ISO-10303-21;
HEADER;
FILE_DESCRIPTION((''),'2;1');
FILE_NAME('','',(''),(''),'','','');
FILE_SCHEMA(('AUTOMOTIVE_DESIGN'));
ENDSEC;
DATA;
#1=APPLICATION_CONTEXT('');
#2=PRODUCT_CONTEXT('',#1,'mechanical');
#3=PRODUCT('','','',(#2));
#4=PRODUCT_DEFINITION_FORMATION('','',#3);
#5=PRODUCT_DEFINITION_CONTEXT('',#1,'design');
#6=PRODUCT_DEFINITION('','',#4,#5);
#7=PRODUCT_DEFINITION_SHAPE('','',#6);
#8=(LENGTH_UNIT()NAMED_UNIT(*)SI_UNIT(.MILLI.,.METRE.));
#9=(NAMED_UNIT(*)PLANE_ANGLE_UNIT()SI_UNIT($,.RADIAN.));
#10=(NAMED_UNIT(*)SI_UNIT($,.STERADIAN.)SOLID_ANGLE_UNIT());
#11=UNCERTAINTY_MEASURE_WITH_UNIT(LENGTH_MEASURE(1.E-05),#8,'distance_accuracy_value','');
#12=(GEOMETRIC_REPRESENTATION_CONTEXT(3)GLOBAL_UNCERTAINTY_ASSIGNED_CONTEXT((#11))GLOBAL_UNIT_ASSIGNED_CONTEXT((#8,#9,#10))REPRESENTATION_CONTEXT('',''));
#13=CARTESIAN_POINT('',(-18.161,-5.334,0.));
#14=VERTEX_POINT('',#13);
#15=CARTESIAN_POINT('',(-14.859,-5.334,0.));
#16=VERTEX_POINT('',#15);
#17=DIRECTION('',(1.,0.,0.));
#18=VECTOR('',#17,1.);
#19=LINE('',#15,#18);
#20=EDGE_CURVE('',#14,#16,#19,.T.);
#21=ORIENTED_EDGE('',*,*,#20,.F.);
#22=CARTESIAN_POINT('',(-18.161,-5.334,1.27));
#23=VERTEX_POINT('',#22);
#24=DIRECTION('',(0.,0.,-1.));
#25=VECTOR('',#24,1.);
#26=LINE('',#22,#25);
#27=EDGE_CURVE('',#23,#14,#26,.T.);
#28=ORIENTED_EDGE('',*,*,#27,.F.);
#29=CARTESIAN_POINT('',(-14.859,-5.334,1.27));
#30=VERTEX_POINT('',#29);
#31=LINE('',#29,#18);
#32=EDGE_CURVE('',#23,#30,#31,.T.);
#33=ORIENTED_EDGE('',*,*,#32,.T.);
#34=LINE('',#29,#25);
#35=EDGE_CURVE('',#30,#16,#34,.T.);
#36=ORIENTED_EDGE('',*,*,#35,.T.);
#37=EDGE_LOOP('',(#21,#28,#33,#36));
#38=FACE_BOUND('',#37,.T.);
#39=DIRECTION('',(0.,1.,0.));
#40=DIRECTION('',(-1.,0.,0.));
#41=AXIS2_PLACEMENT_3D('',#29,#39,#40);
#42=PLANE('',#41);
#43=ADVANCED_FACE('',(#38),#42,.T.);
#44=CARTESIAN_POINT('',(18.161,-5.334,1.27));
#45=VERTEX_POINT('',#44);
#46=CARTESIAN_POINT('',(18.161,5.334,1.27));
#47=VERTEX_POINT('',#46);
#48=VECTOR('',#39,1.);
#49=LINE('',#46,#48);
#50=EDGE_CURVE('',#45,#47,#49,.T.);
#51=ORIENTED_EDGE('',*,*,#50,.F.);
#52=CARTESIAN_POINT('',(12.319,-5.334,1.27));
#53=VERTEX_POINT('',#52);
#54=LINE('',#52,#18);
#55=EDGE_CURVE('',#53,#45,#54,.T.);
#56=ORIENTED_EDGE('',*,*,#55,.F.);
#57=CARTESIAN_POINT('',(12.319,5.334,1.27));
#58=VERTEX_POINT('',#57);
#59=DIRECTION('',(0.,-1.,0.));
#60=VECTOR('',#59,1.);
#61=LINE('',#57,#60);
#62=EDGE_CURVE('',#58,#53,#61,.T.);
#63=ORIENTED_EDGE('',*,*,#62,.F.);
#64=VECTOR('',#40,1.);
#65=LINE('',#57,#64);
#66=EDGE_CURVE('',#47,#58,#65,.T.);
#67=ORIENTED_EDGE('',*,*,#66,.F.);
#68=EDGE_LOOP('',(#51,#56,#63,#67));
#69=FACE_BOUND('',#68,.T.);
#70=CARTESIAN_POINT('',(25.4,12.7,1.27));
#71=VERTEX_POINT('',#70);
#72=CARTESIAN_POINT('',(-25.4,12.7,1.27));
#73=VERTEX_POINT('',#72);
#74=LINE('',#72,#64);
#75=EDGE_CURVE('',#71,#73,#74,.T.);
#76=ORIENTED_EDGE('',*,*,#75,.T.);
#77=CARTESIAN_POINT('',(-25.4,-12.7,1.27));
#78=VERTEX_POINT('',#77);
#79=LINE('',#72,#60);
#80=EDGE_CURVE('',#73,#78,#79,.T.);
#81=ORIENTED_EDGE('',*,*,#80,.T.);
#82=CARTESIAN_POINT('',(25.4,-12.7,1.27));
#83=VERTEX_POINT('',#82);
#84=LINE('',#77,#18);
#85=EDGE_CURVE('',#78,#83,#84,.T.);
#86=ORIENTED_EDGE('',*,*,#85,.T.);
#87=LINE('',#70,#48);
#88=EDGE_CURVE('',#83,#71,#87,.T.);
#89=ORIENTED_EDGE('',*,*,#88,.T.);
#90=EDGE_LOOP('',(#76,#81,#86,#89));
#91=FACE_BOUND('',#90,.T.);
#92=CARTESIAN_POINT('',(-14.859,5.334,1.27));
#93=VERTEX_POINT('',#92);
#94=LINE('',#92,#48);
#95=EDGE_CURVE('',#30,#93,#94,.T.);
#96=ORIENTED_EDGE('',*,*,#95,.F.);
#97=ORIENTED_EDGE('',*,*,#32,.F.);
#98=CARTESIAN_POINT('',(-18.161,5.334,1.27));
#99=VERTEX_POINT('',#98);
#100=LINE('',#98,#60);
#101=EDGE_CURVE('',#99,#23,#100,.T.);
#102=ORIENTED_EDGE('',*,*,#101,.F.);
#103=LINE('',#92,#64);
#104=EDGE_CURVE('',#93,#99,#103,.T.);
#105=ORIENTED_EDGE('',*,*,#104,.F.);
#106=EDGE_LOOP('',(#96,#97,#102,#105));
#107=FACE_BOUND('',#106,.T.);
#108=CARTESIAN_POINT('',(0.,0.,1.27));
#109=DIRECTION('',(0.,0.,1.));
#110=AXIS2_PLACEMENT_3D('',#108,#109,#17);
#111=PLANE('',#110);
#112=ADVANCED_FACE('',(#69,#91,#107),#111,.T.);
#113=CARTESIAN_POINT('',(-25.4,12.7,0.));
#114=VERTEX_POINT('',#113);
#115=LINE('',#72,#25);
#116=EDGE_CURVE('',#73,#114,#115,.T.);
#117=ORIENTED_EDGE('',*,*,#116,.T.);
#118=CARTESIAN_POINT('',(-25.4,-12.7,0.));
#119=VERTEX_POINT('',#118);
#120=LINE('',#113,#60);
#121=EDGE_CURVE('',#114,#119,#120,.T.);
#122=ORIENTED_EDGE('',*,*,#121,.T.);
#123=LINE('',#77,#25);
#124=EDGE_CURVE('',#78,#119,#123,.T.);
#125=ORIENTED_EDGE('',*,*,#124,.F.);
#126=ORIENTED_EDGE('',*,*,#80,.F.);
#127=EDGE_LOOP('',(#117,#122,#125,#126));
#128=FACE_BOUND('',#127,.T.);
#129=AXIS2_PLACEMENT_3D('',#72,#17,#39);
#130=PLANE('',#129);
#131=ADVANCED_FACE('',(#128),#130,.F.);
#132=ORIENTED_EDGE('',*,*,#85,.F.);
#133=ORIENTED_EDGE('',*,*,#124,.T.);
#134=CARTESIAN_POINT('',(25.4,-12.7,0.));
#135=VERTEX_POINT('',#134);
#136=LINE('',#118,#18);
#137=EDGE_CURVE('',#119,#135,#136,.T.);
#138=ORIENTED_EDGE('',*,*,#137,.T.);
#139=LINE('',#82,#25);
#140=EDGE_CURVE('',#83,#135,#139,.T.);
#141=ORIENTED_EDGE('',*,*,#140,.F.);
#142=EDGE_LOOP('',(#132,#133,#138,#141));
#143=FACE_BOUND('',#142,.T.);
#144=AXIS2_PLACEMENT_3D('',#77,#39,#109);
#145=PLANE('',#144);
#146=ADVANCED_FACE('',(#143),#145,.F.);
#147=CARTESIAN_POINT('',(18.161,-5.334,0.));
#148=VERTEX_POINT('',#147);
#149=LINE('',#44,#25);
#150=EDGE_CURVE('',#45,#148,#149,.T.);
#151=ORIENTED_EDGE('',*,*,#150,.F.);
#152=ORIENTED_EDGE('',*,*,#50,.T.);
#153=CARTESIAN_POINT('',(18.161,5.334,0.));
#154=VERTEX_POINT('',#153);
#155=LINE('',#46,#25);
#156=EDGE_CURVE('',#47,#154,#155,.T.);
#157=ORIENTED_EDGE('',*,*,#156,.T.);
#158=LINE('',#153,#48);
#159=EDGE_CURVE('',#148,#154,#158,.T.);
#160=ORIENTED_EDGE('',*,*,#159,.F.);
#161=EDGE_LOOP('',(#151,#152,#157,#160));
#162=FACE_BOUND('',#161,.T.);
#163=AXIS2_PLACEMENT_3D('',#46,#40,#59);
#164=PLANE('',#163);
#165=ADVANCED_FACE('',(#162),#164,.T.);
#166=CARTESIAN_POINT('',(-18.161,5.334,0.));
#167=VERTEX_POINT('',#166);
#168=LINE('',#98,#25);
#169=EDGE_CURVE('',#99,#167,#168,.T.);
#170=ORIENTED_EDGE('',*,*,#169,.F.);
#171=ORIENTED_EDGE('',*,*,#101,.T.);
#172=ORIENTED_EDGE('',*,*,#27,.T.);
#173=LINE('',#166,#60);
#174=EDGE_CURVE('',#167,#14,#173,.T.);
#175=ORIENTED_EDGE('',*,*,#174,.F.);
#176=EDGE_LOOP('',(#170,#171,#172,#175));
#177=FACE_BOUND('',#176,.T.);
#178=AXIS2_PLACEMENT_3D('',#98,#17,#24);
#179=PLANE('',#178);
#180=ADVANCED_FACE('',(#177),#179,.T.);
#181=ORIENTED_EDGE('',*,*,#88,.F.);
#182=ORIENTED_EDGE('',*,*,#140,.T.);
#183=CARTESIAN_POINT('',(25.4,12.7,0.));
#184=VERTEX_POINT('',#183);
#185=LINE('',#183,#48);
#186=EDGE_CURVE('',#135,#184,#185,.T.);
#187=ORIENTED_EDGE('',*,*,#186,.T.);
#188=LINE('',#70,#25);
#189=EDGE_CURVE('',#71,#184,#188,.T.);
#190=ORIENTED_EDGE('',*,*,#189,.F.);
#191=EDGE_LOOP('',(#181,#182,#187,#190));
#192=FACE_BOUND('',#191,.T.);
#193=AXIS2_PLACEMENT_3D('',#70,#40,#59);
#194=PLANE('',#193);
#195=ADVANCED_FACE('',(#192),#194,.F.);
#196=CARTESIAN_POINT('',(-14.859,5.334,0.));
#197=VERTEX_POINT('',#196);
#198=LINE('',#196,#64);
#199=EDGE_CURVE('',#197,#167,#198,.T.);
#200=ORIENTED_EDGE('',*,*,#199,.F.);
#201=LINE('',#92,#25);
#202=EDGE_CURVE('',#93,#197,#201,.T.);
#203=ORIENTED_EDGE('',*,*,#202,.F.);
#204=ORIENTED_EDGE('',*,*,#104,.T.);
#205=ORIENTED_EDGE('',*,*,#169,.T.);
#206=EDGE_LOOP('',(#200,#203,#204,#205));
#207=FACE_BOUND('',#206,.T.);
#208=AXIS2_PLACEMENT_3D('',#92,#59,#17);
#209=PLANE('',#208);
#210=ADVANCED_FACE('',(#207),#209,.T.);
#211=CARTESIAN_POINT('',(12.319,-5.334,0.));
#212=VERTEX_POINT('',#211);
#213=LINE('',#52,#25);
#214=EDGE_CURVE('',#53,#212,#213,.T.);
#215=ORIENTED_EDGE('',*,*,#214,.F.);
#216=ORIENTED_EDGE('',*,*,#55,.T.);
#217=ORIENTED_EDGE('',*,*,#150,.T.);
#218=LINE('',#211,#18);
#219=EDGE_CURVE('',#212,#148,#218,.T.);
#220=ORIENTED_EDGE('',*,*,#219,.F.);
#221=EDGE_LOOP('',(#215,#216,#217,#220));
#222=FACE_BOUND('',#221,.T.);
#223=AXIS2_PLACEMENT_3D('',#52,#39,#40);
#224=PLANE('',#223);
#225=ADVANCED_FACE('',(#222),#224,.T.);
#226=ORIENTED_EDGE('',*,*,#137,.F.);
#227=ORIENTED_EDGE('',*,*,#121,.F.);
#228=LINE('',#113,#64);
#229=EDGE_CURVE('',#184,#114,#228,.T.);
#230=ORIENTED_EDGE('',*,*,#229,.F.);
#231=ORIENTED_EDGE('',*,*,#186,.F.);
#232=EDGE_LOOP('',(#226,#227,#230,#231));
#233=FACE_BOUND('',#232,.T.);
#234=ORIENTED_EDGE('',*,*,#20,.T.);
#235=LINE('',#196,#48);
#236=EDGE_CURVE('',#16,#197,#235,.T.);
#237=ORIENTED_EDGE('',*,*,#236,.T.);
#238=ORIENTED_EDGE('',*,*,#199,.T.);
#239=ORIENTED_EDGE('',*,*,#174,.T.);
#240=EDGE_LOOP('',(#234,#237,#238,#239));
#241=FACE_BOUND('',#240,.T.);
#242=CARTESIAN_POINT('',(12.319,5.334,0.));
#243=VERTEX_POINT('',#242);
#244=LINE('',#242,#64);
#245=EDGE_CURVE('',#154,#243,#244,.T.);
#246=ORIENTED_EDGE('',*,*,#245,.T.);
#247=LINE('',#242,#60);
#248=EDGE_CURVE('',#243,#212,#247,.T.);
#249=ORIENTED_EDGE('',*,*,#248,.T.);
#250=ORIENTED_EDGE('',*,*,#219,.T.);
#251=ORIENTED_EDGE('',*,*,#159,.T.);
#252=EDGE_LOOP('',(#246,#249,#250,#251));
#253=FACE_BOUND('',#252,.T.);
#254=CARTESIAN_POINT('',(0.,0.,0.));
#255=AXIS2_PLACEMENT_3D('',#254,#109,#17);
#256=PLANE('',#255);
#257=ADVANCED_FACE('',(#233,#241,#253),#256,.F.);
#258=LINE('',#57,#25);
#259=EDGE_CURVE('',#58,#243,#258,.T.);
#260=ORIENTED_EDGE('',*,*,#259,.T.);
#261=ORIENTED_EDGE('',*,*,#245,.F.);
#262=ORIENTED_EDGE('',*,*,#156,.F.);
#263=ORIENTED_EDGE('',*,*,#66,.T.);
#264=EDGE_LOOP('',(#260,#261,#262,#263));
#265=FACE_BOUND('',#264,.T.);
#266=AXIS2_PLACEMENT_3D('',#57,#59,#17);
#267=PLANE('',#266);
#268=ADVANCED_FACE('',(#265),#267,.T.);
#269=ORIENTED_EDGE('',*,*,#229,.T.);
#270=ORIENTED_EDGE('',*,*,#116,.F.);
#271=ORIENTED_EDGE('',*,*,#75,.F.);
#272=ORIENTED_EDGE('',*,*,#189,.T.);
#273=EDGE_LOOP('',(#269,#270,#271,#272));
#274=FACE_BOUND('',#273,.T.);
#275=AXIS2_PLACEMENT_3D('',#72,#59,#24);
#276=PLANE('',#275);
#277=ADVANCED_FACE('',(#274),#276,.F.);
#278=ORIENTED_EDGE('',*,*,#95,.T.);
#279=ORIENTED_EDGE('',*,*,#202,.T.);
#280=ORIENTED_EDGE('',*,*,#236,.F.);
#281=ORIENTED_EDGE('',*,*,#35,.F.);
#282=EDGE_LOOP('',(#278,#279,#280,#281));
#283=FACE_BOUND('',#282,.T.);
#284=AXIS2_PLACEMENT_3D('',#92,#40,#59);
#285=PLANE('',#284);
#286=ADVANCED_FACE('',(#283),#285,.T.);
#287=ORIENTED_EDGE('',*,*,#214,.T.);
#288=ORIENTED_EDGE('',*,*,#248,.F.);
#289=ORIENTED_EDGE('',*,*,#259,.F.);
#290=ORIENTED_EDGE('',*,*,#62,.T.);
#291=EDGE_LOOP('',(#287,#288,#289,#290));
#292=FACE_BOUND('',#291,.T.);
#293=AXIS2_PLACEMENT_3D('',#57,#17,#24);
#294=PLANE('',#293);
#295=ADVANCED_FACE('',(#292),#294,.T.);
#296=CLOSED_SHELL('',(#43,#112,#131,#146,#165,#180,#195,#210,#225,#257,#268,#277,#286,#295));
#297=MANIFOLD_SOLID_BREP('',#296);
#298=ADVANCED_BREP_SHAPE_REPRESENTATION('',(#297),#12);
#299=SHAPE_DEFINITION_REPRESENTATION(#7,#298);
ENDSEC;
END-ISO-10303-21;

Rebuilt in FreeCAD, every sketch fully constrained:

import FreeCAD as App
import Part
import Sketcher
Q = App.Units.Quantity


def add_polygon(sketch, points):
    """Adds a closed chain of lines whose ends are joined by coincident constraints."""
    first, n = sketch.GeometryCount, len(points)
    for a, b in zip(points, points[1:] + points[:1]):
        sketch.addGeometry(Part.LineSegment(App.Vector(*a, 0), App.Vector(*b, 0)), False)
    for i in range(n):
        sketch.addConstraint(Sketcher.Constraint("Coincident", first + i, 2, first + (i + 1) % n, 1))

doc = App.newDocument("Part")
body = doc.addObject("PartDesign::Body", "Body")

sketch1 = doc.addObject("Sketcher::SketchObject", "Sketch")
body.addObject(sketch1)
sketch1.AttachmentSupport = (doc.XY_Plane, [""])
sketch1.MapMode = "FlatFace"
add_polygon(sketch1, [(-25.4, 12.7), (-25.4, -12.7), (25.4, -12.7), (25.4, 12.7)])
add_polygon(sketch1, [(-14.9, -5.3), (-18.2, -5.3), (-18.2, 5.3), (-14.9, 5.3)])
add_polygon(sketch1, [(18.2, -5.3), (12.3, -5.3), (12.3, 5.3), (18.2, 5.3)])
sketch1.addConstraint(Sketcher.Constraint("Vertical", 0))
sketch1.addConstraint(Sketcher.Constraint("Horizontal", 1))
sketch1.addConstraint(Sketcher.Constraint("Vertical", 2))
sketch1.addConstraint(Sketcher.Constraint("Horizontal", 3))
sketch1.addConstraint(Sketcher.Constraint("Horizontal", 4))
sketch1.addConstraint(Sketcher.Constraint("Vertical", 5))
sketch1.addConstraint(Sketcher.Constraint("Horizontal", 6))
sketch1.addConstraint(Sketcher.Constraint("Vertical", 7))
sketch1.addConstraint(Sketcher.Constraint("Horizontal", 8))
sketch1.addConstraint(Sketcher.Constraint("Vertical", 9))
sketch1.addConstraint(Sketcher.Constraint("Horizontal", 10))
sketch1.addConstraint(Sketcher.Constraint("Vertical", 11))
sketch1.addConstraint(Sketcher.Constraint("Symmetric", 0, 2, 2, 2, -1, 1))
sketch1.addConstraint(Sketcher.Constraint("Symmetric", 4, 2, 10, 2, -1, 1))
sketch1.addConstraint(Sketcher.Constraint("Horizontal", 7, 2, 8, 2))
sketch1.addConstraint(Sketcher.Constraint("Horizontal", 6, 2, 9, 2))
sketch1.addConstraint(Sketcher.Constraint("DistanceX", 1, 1, 1, 2, Q("2 in")))
sketch1.addConstraint(Sketcher.Constraint("DistanceY", 0, 2, 0, 1, Q("1 in")))
sketch1.addConstraint(Sketcher.Constraint("DistanceX", 4, 2, 4, 1, Q("0.13 in")))
sketch1.addConstraint(Sketcher.Constraint("DistanceX", 8, 2, 8, 1, Q("0.23 in")))
sketch1.addConstraint(Sketcher.Constraint("DistanceY", 5, 1, 5, 2, Q("0.42 in")))
sketch1.addConstraint(Sketcher.Constraint("DistanceX", 4, 2, 8, 2, Q("1.2 in")))
pad1 = doc.addObject("PartDesign::Pad", "Pad")
body.addObject(pad1)
pad1.Profile = sketch1
pad1.Length = Q("0.05 in")

doc.recompute()
